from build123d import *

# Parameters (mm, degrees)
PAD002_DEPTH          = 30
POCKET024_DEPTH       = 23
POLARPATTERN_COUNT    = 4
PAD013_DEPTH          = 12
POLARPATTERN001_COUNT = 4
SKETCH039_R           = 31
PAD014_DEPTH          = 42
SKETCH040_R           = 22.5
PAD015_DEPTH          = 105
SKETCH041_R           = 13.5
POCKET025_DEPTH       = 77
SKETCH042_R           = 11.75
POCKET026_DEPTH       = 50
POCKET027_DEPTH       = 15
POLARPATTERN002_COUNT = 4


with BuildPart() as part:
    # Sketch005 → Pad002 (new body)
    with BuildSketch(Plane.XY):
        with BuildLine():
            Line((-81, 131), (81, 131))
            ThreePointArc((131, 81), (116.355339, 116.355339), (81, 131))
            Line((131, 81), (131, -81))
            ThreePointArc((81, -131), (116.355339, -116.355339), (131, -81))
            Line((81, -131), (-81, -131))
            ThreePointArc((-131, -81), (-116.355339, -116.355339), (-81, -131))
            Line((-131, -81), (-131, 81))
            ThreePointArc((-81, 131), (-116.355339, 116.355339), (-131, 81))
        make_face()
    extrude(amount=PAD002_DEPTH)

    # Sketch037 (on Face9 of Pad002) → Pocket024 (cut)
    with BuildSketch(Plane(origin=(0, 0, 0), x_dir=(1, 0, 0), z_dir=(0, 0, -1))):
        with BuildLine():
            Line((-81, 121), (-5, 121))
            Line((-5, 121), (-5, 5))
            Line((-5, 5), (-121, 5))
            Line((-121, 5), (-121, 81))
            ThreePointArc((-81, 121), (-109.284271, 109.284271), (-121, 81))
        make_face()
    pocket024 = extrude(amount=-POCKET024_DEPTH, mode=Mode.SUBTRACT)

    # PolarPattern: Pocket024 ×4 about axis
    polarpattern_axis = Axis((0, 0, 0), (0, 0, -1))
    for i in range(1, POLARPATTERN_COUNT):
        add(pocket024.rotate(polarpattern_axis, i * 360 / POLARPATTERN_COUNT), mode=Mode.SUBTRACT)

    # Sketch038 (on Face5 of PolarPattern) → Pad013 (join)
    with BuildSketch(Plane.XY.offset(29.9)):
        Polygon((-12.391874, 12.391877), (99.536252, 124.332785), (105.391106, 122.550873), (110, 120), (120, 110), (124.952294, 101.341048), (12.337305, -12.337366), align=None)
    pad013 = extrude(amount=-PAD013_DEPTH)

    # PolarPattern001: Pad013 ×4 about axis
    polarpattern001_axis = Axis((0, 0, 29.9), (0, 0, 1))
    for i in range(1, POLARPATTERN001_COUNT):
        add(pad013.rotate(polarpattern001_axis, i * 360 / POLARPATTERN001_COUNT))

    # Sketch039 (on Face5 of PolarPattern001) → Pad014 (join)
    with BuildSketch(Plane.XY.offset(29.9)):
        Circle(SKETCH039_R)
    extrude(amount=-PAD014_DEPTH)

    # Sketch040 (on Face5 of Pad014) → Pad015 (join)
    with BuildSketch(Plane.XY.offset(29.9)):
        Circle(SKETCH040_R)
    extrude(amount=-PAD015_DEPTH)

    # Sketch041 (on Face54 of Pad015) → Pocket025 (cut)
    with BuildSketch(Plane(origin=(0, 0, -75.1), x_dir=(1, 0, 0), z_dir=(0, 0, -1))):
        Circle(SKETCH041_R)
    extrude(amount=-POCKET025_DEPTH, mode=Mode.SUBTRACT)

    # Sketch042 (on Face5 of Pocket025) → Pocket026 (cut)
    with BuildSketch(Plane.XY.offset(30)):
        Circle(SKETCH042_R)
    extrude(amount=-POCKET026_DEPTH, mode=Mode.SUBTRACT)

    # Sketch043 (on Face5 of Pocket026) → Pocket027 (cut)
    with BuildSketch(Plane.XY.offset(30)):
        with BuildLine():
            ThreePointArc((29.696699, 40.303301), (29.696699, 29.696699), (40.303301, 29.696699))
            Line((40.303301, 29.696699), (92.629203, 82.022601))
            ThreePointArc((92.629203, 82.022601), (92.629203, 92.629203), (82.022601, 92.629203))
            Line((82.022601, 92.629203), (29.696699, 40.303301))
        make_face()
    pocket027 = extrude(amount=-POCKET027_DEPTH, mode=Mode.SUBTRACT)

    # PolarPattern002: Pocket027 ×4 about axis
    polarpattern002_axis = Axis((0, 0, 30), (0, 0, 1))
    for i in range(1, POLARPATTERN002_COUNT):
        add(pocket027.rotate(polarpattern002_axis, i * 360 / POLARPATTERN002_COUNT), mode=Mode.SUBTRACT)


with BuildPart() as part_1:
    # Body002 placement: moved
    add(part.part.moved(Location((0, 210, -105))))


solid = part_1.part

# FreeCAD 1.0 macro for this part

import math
import FreeCAD as App
import Part
import Sketcher
from FreeCAD import Vector
Q = App.Units.Quantity

doc = App.newDocument("Part")
body = doc.addObject("PartDesign::Body", "Body")

# Sketch on XY plane
sketch1 = doc.addObject("Sketcher::SketchObject", "Sketch")
body.addObject(sketch1)
sketch1.AttachmentSupport = (doc.XY_Plane, [""])
sketch1.MapMode = "FlatFace"
sketch1.addGeometry([
    Part.LineSegment(Vector(81, 131, 0), Vector(-81, 131, 0)),  # 0
    Part.ArcOfCircle(Part.Circle(Vector(-81, 81, 0), Vector(0, 0, 1), 50), math.radians(90), math.radians(180)),  # 1
    Part.LineSegment(Vector(-131, 81, 0), Vector(-131, -81, 0)),  # 2
    Part.ArcOfCircle(Part.Circle(Vector(-81, -81, 0), Vector(0, 0, 1), 50), math.radians(-180), math.radians(-90)),  # 3
    Part.LineSegment(Vector(-81, -131, 0), Vector(81, -131, 0)),  # 4
    Part.ArcOfCircle(Part.Circle(Vector(81, -81, 0), Vector(0, 0, 1), 50), math.radians(-90), math.radians(0)),  # 5
    Part.LineSegment(Vector(131, -81, 0), Vector(131, 81, 0)),  # 6
    Part.ArcOfCircle(Part.Circle(Vector(81, 81, 0), Vector(0, 0, 1), 50), math.radians(0), math.radians(90)),  # 7
], False)
sketch1.addConstraint([
    Sketcher.Constraint("Tangent", 0, 2, 1, 1),
    Sketcher.Constraint("Tangent", 1, 2, 2, 1),
    Sketcher.Constraint("Tangent", 2, 2, 3, 1),
    Sketcher.Constraint("Tangent", 3, 2, 4, 1),
    Sketcher.Constraint("Tangent", 4, 2, 5, 1),
    Sketcher.Constraint("Tangent", 5, 2, 6, 1),
    Sketcher.Constraint("Tangent", 6, 2, 7, 1),
    Sketcher.Constraint("Tangent", 7, 2, 0, 1),
    Sketcher.Constraint("Horizontal", 0),
    Sketcher.Constraint("Vertical", 2),
    Sketcher.Constraint("Horizontal", 4),
    Sketcher.Constraint("Vertical", 6),
    Sketcher.Constraint("Equal", 1, 3),
    Sketcher.Constraint("Equal", 3, 5),
    Sketcher.Constraint("Equal", 5, 7),
    Sketcher.Constraint("Symmetric", 1, 3, 5, 3, -1, 1),
    Sketcher.Constraint("Equal", 4, 2),
    Sketcher.Constraint("Radius", 1, 50.0),
    Sketcher.Constraint("DistanceX", 0, 2, 0, 1, 162.0),
])
pad1 = doc.addObject("PartDesign::Pad", "Pad")
body.addObject(pad1)
pad1.Profile = sketch1
pad1.Length = 30

# Sketch on XY plane
sketch2 = doc.addObject("Sketcher::SketchObject", "Sketch001")
body.addObject(sketch2)
sketch2.AttachmentSupport = (doc.XY_Plane, [""])
sketch2.MapMode = "FlatFace"
sketch2.addGeometry([
    Part.LineSegment(Vector(-5, -121, 0), Vector(-81, -121, 0)),  # 0
    Part.ArcOfCircle(Part.Circle(Vector(-80.999999, -80.999999, 0), Vector(0, 0, 1), 40.000001), math.radians(-179.999999), math.radians(-90.000001)),  # 1
    Part.LineSegment(Vector(-121, -81, 0), Vector(-121, -5, 0)),  # 2
    Part.LineSegment(Vector(-121, -5, 0), Vector(-5, -5, 0)),  # 3
    Part.LineSegment(Vector(-5, -5, 0), Vector(-5, -121, 0)),  # 4
], False)
sketch2.addConstraint([
    Sketcher.Constraint("Tangent", 0, 2, 1, 2),
    Sketcher.Constraint("Tangent", 1, 1, 2, 1),
    Sketcher.Constraint("Coincident", 2, 2, 3, 1),
    Sketcher.Constraint("Coincident", 3, 2, 4, 1),
    Sketcher.Constraint("Coincident", 4, 2, 0, 1),
    Sketcher.Constraint("Horizontal", 0),
    Sketcher.Constraint("Vertical", 2),
    Sketcher.Constraint("Horizontal", 3),
    Sketcher.Constraint("Vertical", 4),
    Sketcher.Constraint("Equal", 0, 2),
    Sketcher.Constraint("Radius", 1, 40.000001),
    Sketcher.Constraint("DistanceX", 0, 2, 0, 1, 76.0),
    Sketcher.Constraint("DistanceX", 1, 3, -1, 1, 80.999999),
    Sketcher.Constraint("DistanceY", 1, 3, -1, 1, 80.999999),
])
pocket1 = doc.addObject("PartDesign::Pocket", "Pocket")
body.addObject(pocket1)
pocket1.Profile = sketch2
pocket1.Length = 23
pocket1.Reversed = True
doc.recompute()

polarpattern = doc.addObject("PartDesign::PolarPattern", "PolarPattern")
body.addObject(polarpattern)
polarpattern.Originals = [pocket1]
polarpattern.Axis = (doc.Z_Axis, [""])
polarpattern.Angle = 360
polarpattern.Occurrences = 4
body.Tip = polarpattern

# Sketch on XY plane
sketch3 = doc.addObject("Sketcher::SketchObject", "Sketch002")
body.addObject(sketch3)
sketch3.AttachmentSupport = (doc.XY_Plane, [""])
sketch3.MapMode = "FlatFace"
sketch3.AttachmentOffset = App.Placement(Vector(0, 0, 29.9), App.Rotation())
sketch3.addGeometry([
    Part.LineSegment(Vector(99.536252, 124.332785, 0), Vector(-12.391874, 12.391877, 0)),  # 0
    Part.LineSegment(Vector(-12.391874, 12.391877, 0), Vector(12.337305, -12.337366, 0)),  # 1
    Part.LineSegment(Vector(12.337305, -12.337366, 0), Vector(124.952294, 101.341048, 0)),  # 2
    Part.LineSegment(Vector(124.952294, 101.341048, 0), Vector(120, 110, 0)),  # 3
    Part.LineSegment(Vector(120, 110, 0), Vector(110, 120, 0)),  # 4
    Part.LineSegment(Vector(110, 120, 0), Vector(105.391106, 122.550873, 0)),  # 5
    Part.LineSegment(Vector(105.391106, 122.550873, 0), Vector(99.536252, 124.332785, 0)),  # 6
], False)
sketch3.addConstraint([
    Sketcher.Constraint("Coincident", 0, 2, 1, 1),
    Sketcher.Constraint("Coincident", 1, 2, 2, 1),
    Sketcher.Constraint("Coincident", 2, 2, 3, 1),
    Sketcher.Constraint("Coincident", 3, 2, 4, 1),
    Sketcher.Constraint("Coincident", 4, 2, 5, 1),
    Sketcher.Constraint("Coincident", 5, 2, 6, 1),
    Sketcher.Constraint("Coincident", 6, 2, 0, 1),
    Sketcher.Constraint("DistanceX", -1, 1, 3, 2, 120.0),
    Sketcher.Constraint("DistanceY", -1, 1, 3, 2, 110.0),
    Sketcher.Constraint("DistanceX", -1, 1, 4, 2, 110.0),
    Sketcher.Constraint("DistanceY", -1, 1, 4, 2, 120.0),
    Sketcher.Constraint("DistanceX", 1, 2, 5, 2, 93.053801),
    Sketcher.Constraint("Distance", 5, 5.267718),
    Sketcher.Constraint("Distance", 6, 6.12001),
    Sketcher.Constraint("DistanceY", -1, 1, 2, 2, 101.341048),
    Sketcher.Constraint("DistanceX", 0, 2, 1, 2, 24.729179),
    Sketcher.Constraint("DistanceX", 1, 2, 2, 2, 112.614989),
    Sketcher.Constraint("DistanceY", 0, 2, 2, 2, 88.949171),
    Sketcher.Constraint("DistanceY", 1, 2, 5, 2, 134.888239),
    Sketcher.Constraint("DistanceX", 6, 2, 2, 2, 25.416042),
    Sketcher.Constraint("DistanceY", 0, 2, 6, 2, 111.940908),
])
pad2 = doc.addObject("PartDesign::Pad", "Pad001")
body.addObject(pad2)
pad2.Profile = sketch3
pad2.Length = 12
pad2.Reversed = True
doc.recompute()

polarpattern2 = doc.addObject("PartDesign::PolarPattern", "PolarPattern001")
body.addObject(polarpattern2)
polarpattern2.Originals = [pad2]
polarpattern2.Axis = (doc.Z_Axis, [""])
polarpattern2.Angle = 360
polarpattern2.Occurrences = 4
body.Tip = polarpattern2

# Sketch on XY plane
sketch4 = doc.addObject("Sketcher::SketchObject", "Sketch003")
body.addObject(sketch4)
sketch4.AttachmentSupport = (doc.XY_Plane, [""])
sketch4.MapMode = "FlatFace"
sketch4.AttachmentOffset = App.Placement(Vector(0, 0, 29.9), App.Rotation())
sketch4.addGeometry(Part.Circle(Vector(0, 0, 0), Vector(0, 0, 1), 31), False)
sketch4.addConstraint([
    Sketcher.Constraint("Coincident", 0, 3, -1, 1),
    Sketcher.Constraint("Diameter", 0, 62.0),
])
pad3 = doc.addObject("PartDesign::Pad", "Pad002")
body.addObject(pad3)
pad3.Profile = sketch4
pad3.Length = 42
pad3.Reversed = True

# Sketch on XY plane
sketch5 = doc.addObject("Sketcher::SketchObject", "Sketch004")
body.addObject(sketch5)
sketch5.AttachmentSupport = (doc.XY_Plane, [""])
sketch5.MapMode = "FlatFace"
sketch5.AttachmentOffset = App.Placement(Vector(0, 0, 29.9), App.Rotation())
sketch5.addGeometry(Part.Circle(Vector(0, 0, 0), Vector(0, 0, 1), 22.5), False)
sketch5.addConstraint([
    Sketcher.Constraint("Coincident", 0, 3, -1, 1),
    Sketcher.Constraint("Diameter", 0, 45.0),
])
pad4 = doc.addObject("PartDesign::Pad", "Pad003")
body.addObject(pad4)
pad4.Profile = sketch5
pad4.Length = 105
pad4.Reversed = True

# Sketch on XY plane
sketch6 = doc.addObject("Sketcher::SketchObject", "Sketch005")
body.addObject(sketch6)
sketch6.AttachmentSupport = (doc.XY_Plane, [""])
sketch6.MapMode = "FlatFace"
sketch6.AttachmentOffset = App.Placement(Vector(0, 0, -75.1), App.Rotation())
sketch6.addGeometry(Part.Circle(Vector(0, 0, 0), Vector(0, 0, 1), 13.5), False)
sketch6.addConstraint([
    Sketcher.Constraint("Coincident", 0, 3, -1, 1),
    Sketcher.Constraint("Diameter", 0, 27.0),
])
pocket2 = doc.addObject("PartDesign::Pocket", "Pocket001")
body.addObject(pocket2)
pocket2.Profile = sketch6
pocket2.Length = 77
pocket2.Reversed = True

# Sketch on XY plane
sketch7 = doc.addObject("Sketcher::SketchObject", "Sketch006")
body.addObject(sketch7)
sketch7.AttachmentSupport = (doc.XY_Plane, [""])
sketch7.MapMode = "FlatFace"
sketch7.AttachmentOffset = App.Placement(Vector(0, 0, 30), App.Rotation())
sketch7.addGeometry(Part.Circle(Vector(0, 0, 0), Vector(0, 0, 1), 11.75), False)
sketch7.addConstraint([
    Sketcher.Constraint("Coincident", 0, 3, -1, 1),
    Sketcher.Constraint("Diameter", 0, 23.5),
])
pocket3 = doc.addObject("PartDesign::Pocket", "Pocket002")
body.addObject(pocket3)
pocket3.Profile = sketch7
pocket3.Length = 50

# Sketch on XY plane
sketch8 = doc.addObject("Sketcher::SketchObject", "Sketch007")
body.addObject(sketch8)
sketch8.AttachmentSupport = (doc.XY_Plane, [""])
sketch8.MapMode = "FlatFace"
sketch8.AttachmentOffset = App.Placement(Vector(0, 0, 30), App.Rotation())
sketch8.addGeometry([
    Part.ArcOfCircle(Part.Circle(Vector(35, 35, 0), Vector(0, 0, 1), 7.5), math.radians(135), math.radians(315)),
    Part.LineSegment(Vector(40.303301, 29.696699, 0), Vector(92.629203, 82.022601, 0)),
    Part.ArcOfCircle(Part.Circle(Vector(87.325902, 87.325902, 0), Vector(0, 0, 1), 7.5), math.radians(-45), math.radians(135)),
    Part.LineSegment(Vector(82.022601, 92.629203, 0), Vector(29.696699, 40.303301, 0)),
], False)
sketch8.addConstraint([
    Sketcher.Constraint("Tangent", 0, 2, 1, 1),
    Sketcher.Constraint("Tangent", 1, 2, 2, 1),
    Sketcher.Constraint("Tangent", 2, 2, 3, 1),
    Sketcher.Constraint("Tangent", 3, 2, 0, 1),
    Sketcher.Constraint("Equal", 0, 2),
    Sketcher.Constraint("Radius", 0, 7.5),
    Sketcher.Constraint("Angle", 1, Q("45 deg")),
    Sketcher.Constraint("Distance", 1, 74.0),
    Sketcher.Constraint("DistanceX", -1, 1, 0, 3, 35.0),
    Sketcher.Constraint("DistanceY", -1, 1, 0, 3, 35.0),
])
pocket4 = doc.addObject("PartDesign::Pocket", "Pocket003")
body.addObject(pocket4)
pocket4.Profile = sketch8
pocket4.Length = 15
doc.recompute()

polarpattern3 = doc.addObject("PartDesign::PolarPattern", "PolarPattern002")
body.addObject(polarpattern3)
polarpattern3.Originals = [pocket4]
polarpattern3.Axis = (doc.Z_Axis, [""])
polarpattern3.Angle = 360
polarpattern3.Occurrences = 4
body.Tip = polarpattern3
body2 = doc.addObject("PartDesign::Body", "Body001")
doc.recompute()

body.Placement = App.Placement(Vector(0, 210, -105), App.Rotation(Vector(0, 0, 1), 0))
boolean = doc.addObject("PartDesign::Boolean", "Boolean")
body2.addObject(boolean)
boolean.Type = "Fuse"
boolean.addObjects([body])

doc.recompute()
